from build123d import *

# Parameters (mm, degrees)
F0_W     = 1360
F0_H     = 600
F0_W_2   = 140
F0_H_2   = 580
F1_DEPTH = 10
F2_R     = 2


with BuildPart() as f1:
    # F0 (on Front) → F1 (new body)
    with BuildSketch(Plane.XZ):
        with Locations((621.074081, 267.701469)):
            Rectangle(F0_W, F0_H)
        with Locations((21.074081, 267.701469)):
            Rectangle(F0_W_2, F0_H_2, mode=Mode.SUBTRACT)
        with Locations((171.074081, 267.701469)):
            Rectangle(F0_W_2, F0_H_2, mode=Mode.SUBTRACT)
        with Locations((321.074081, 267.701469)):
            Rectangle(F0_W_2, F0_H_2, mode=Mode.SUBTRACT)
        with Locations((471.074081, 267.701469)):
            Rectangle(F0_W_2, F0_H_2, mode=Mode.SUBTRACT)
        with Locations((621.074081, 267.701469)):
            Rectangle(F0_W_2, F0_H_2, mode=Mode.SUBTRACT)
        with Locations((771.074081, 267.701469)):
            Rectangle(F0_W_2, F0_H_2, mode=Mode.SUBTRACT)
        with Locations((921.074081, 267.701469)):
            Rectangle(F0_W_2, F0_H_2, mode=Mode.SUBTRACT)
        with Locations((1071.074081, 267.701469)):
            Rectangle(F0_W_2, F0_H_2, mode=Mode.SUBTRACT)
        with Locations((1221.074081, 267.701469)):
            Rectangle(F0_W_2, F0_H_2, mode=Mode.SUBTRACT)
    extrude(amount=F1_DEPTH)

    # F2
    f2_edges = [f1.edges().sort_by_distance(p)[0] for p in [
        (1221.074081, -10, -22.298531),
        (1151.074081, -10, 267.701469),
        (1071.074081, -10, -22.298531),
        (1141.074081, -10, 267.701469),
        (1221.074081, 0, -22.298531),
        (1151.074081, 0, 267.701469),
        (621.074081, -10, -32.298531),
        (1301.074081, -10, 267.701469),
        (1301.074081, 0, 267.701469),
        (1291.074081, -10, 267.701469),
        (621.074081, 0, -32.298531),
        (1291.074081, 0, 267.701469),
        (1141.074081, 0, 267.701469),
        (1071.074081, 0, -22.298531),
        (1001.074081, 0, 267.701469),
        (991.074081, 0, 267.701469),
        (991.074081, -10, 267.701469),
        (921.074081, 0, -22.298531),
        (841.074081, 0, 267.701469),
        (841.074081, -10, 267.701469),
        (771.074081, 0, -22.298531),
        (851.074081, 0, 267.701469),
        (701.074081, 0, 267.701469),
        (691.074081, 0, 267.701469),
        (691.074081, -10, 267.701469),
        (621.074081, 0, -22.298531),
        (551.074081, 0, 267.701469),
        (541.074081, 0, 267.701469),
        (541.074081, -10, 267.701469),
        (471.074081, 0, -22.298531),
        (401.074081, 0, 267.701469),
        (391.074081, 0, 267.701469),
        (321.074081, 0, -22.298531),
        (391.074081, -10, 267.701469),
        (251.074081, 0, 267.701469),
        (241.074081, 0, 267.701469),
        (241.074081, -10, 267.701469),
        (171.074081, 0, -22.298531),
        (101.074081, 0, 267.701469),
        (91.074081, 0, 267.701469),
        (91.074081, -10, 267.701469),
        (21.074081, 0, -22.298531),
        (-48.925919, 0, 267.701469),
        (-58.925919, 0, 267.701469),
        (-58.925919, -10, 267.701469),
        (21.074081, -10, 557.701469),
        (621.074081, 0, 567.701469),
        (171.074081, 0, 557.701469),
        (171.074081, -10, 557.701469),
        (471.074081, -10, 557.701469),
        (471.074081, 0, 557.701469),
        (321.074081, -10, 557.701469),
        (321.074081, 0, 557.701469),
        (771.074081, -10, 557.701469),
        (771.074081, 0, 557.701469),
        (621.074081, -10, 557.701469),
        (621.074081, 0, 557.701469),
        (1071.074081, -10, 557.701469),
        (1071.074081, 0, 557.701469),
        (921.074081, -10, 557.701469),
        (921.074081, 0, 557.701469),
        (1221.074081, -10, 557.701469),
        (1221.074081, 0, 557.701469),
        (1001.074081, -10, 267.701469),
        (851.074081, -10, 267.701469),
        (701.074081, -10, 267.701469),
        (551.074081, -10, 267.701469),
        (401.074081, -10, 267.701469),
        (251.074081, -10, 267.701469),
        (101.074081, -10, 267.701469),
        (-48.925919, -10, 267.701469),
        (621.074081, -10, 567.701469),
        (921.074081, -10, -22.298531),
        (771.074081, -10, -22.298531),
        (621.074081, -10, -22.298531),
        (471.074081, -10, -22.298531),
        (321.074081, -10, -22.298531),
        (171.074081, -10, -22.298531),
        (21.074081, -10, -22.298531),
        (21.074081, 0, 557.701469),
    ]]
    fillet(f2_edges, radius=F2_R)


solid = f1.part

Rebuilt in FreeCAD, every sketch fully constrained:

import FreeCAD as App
import Part
import Sketcher
from FreeCAD import Vector
Q = App.Units.Quantity


def edges_at(feature, points):
    """Names of the edges that pass closest to the given points."""
    edges = feature.Shape.Edges
    near = lambda p: min(range(len(edges)), key=lambda i: edges[i].distToShape(Part.Vertex(*p))[0])
    return sorted({f"Edge{near(p) + 1}" for p in points})

doc = App.newDocument("Part")
params = doc.addObject("Spreadsheet::Sheet", "Params")
for row, (alias, value) in enumerate([
    ("sketch1_width", "1360 mm"),
    ("sketch1_width2", "140 mm"),
    ("sketch1_height", "600 mm"),
    ("sketch1_height2", "580 mm"),
    ("pad1_length", "10 mm"),
    ("fillet_radius", "2 mm"),
], start=1):
    params.set(f"A{row}", alias)
    params.set(f"B{row}", "=" + value)
    params.setAlias(f"B{row}", alias)

body = doc.addObject("PartDesign::Body", "Body")

# Sketch on XZ plane
sketch1 = doc.addObject("Sketcher::SketchObject", "Sketch")
body.addObject(sketch1)
sketch1.AttachmentSupport = (doc.XZ_Plane, [""])
sketch1.MapMode = "FlatFace"
sketch1.addGeometry([
    Part.LineSegment(Vector(-58.925919, 567.701469, 0), Vector(-58.925919, -32.298531, 0)),  # 0
    Part.LineSegment(Vector(-58.925919, -32.298531, 0), Vector(1301.074081, -32.298531, 0)),  # 1
    Part.LineSegment(Vector(1301.074081, -32.298531, 0), Vector(1301.074081, 567.701469, 0)),  # 2
    Part.LineSegment(Vector(1301.074081, 567.701469, 0), Vector(-58.925919, 567.701469, 0)),  # 3
    Part.LineSegment(Vector(91.074081, -22.298531, 0), Vector(-48.925919, -22.298531, 0)),  # 4
    Part.LineSegment(Vector(-48.925919, -22.298531, 0), Vector(-48.925919, 557.701469, 0)),  # 5
    Part.LineSegment(Vector(-48.925919, 557.701469, 0), Vector(91.074081, 557.701469, 0)),  # 6
    Part.LineSegment(Vector(91.074081, 557.701469, 0), Vector(91.074081, -22.298531, 0)),  # 7
    Part.LineSegment(Vector(241.074081, -22.298531, 0), Vector(101.074081, -22.298531, 0)),  # 8
    Part.LineSegment(Vector(101.074081, -22.298531, 0), Vector(101.074081, 557.701469, 0)),  # 9
    Part.LineSegment(Vector(101.074081, 557.701469, 0), Vector(241.074081, 557.701469, 0)),  # 10
    Part.LineSegment(Vector(241.074081, 557.701469, 0), Vector(241.074081, -22.298531, 0)),  # 11
    Part.LineSegment(Vector(391.074081, -22.298531, 0), Vector(251.074081, -22.298531, 0)),  # 12
    Part.LineSegment(Vector(251.074081, -22.298531, 0), Vector(251.074081, 557.701469, 0)),  # 13
    Part.LineSegment(Vector(251.074081, 557.701469, 0), Vector(391.074081, 557.701469, 0)),  # 14
    Part.LineSegment(Vector(391.074081, 557.701469, 0), Vector(391.074081, -22.298531, 0)),  # 15
    Part.LineSegment(Vector(541.074081, -22.298531, 0), Vector(401.074081, -22.298531, 0)),  # 16
    Part.LineSegment(Vector(401.074081, -22.298531, 0), Vector(401.074081, 557.701469, 0)),  # 17
    Part.LineSegment(Vector(401.074081, 557.701469, 0), Vector(541.074081, 557.701469, 0)),  # 18
    Part.LineSegment(Vector(541.074081, 557.701469, 0), Vector(541.074081, -22.298531, 0)),  # 19
    Part.LineSegment(Vector(691.074081, -22.298531, 0), Vector(551.074081, -22.298531, 0)),  # 20
    Part.LineSegment(Vector(551.074081, -22.298531, 0), Vector(551.074081, 557.701469, 0)),  # 21
    Part.LineSegment(Vector(551.074081, 557.701469, 0), Vector(691.074081, 557.701469, 0)),  # 22
    Part.LineSegment(Vector(691.074081, 557.701469, 0), Vector(691.074081, -22.298531, 0)),  # 23
    Part.LineSegment(Vector(841.074081, -22.298531, 0), Vector(701.074081, -22.298531, 0)),  # 24
    Part.LineSegment(Vector(701.074081, -22.298531, 0), Vector(701.074081, 557.701469, 0)),  # 25
    Part.LineSegment(Vector(701.074081, 557.701469, 0), Vector(841.074081, 557.701469, 0)),  # 26
    Part.LineSegment(Vector(841.074081, 557.701469, 0), Vector(841.074081, -22.298531, 0)),  # 27
    Part.LineSegment(Vector(991.074081, -22.298531, 0), Vector(851.074081, -22.298531, 0)),  # 28
    Part.LineSegment(Vector(851.074081, -22.298531, 0), Vector(851.074081, 557.701469, 0)),  # 29
    Part.LineSegment(Vector(851.074081, 557.701469, 0), Vector(991.074081, 557.701469, 0)),  # 30
    Part.LineSegment(Vector(991.074081, 557.701469, 0), Vector(991.074081, -22.298531, 0)),  # 31
    Part.LineSegment(Vector(1141.074081, -22.298531, 0), Vector(1001.074081, -22.298531, 0)),  # 32
    Part.LineSegment(Vector(1001.074081, -22.298531, 0), Vector(1001.074081, 557.701469, 0)),  # 33
    Part.LineSegment(Vector(1001.074081, 557.701469, 0), Vector(1141.074081, 557.701469, 0)),  # 34
    Part.LineSegment(Vector(1141.074081, 557.701469, 0), Vector(1141.074081, -22.298531, 0)),  # 35
    Part.LineSegment(Vector(1291.074081, -22.298531, 0), Vector(1151.074081, -22.298531, 0)),  # 36
    Part.LineSegment(Vector(1151.074081, -22.298531, 0), Vector(1151.074081, 557.701469, 0)),  # 37
    Part.LineSegment(Vector(1151.074081, 557.701469, 0), Vector(1291.074081, 557.701469, 0)),  # 38
    Part.LineSegment(Vector(1291.074081, 557.701469, 0), Vector(1291.074081, -22.298531, 0)),  # 39
], False)
sketch1.addConstraint([
    Sketcher.Constraint("Coincident", 0, 2, 1, 1),
    Sketcher.Constraint("Coincident", 1, 2, 2, 1),
    Sketcher.Constraint("Coincident", 2, 2, 3, 1),
    Sketcher.Constraint("Coincident", 3, 2, 0, 1),
    Sketcher.Constraint("Coincident", 4, 2, 5, 1),
    Sketcher.Constraint("Coincident", 5, 2, 6, 1),
    Sketcher.Constraint("Coincident", 6, 2, 7, 1),
    Sketcher.Constraint("Coincident", 7, 2, 4, 1),
    Sketcher.Constraint("Coincident", 8, 2, 9, 1),
    Sketcher.Constraint("Coincident", 9, 2, 10, 1),
    Sketcher.Constraint("Coincident", 10, 2, 11, 1),
    Sketcher.Constraint("Coincident", 11, 2, 8, 1),
    Sketcher.Constraint("Coincident", 12, 2, 13, 1),
    Sketcher.Constraint("Coincident", 13, 2, 14, 1),
    Sketcher.Constraint("Coincident", 14, 2, 15, 1),
    Sketcher.Constraint("Coincident", 15, 2, 12, 1),
    Sketcher.Constraint("Coincident", 16, 2, 17, 1),
    Sketcher.Constraint("Coincident", 17, 2, 18, 1),
    Sketcher.Constraint("Coincident", 18, 2, 19, 1),
    Sketcher.Constraint("Coincident", 19, 2, 16, 1),
    Sketcher.Constraint("Coincident", 20, 2, 21, 1),
    Sketcher.Constraint("Coincident", 21, 2, 22, 1),
    Sketcher.Constraint("Coincident", 22, 2, 23, 1),
    Sketcher.Constraint("Coincident", 23, 2, 20, 1),
    Sketcher.Constraint("Coincident", 24, 2, 25, 1),
    Sketcher.Constraint("Coincident", 25, 2, 26, 1),
    Sketcher.Constraint("Coincident", 26, 2, 27, 1),
    Sketcher.Constraint("Coincident", 27, 2, 24, 1),
    Sketcher.Constraint("Coincident", 28, 2, 29, 1),
    Sketcher.Constraint("Coincident", 29, 2, 30, 1),
    Sketcher.Constraint("Coincident", 30, 2, 31, 1),
    Sketcher.Constraint("Coincident", 31, 2, 28, 1),
    Sketcher.Constraint("Coincident", 32, 2, 33, 1),
    Sketcher.Constraint("Coincident", 33, 2, 34, 1),
    Sketcher.Constraint("Coincident", 34, 2, 35, 1),
    Sketcher.Constraint("Coincident", 35, 2, 32, 1),
    Sketcher.Constraint("Coincident", 36, 2, 37, 1),
    Sketcher.Constraint("Coincident", 37, 2, 38, 1),
    Sketcher.Constraint("Coincident", 38, 2, 39, 1),
    Sketcher.Constraint("Coincident", 39, 2, 36, 1),
    Sketcher.Constraint("Vertical", 0),
    Sketcher.Constraint("Horizontal", 1),
    Sketcher.Constraint("Vertical", 2),
    Sketcher.Constraint("Horizontal", 3),
    Sketcher.Constraint("Horizontal", 4),
    Sketcher.Constraint("Vertical", 5),
    Sketcher.Constraint("Horizontal", 6),
    Sketcher.Constraint("Vertical", 7),
    Sketcher.Constraint("Horizontal", 8),
    Sketcher.Constraint("Vertical", 9),
    Sketcher.Constraint("Horizontal", 10),
    Sketcher.Constraint("Vertical", 11),
    Sketcher.Constraint("Horizontal", 12),
    Sketcher.Constraint("Vertical", 13),
    Sketcher.Constraint("Horizontal", 14),
    Sketcher.Constraint("Vertical", 15),
    Sketcher.Constraint("Horizontal", 16),
    Sketcher.Constraint("Vertical", 17),
    Sketcher.Constraint("Horizontal", 18),
    Sketcher.Constraint("Vertical", 19),
    Sketcher.Constraint("Horizontal", 20),
    Sketcher.Constraint("Vertical", 21),
    Sketcher.Constraint("Horizontal", 22),
    Sketcher.Constraint("Vertical", 23),
    Sketcher.Constraint("Horizontal", 24),
    Sketcher.Constraint("Vertical", 25),
    Sketcher.Constraint("Horizontal", 26),
    Sketcher.Constraint("Vertical", 27),
    Sketcher.Constraint("Horizontal", 28),
    Sketcher.Constraint("Vertical", 29),
    Sketcher.Constraint("Horizontal", 30),
    Sketcher.Constraint("Vertical", 31),
    Sketcher.Constraint("Horizontal", 32),
    Sketcher.Constraint("Vertical", 33),
    Sketcher.Constraint("Horizontal", 34),
    Sketcher.Constraint("Vertical", 35),
    Sketcher.Constraint("Horizontal", 36),
    Sketcher.Constraint("Vertical", 37),
    Sketcher.Constraint("Horizontal", 38),
    Sketcher.Constraint("Vertical", 39),
    Sketcher.Constraint("Horizontal", 7, 2, 8, 2),
    Sketcher.Constraint("Horizontal", 6, 2, 9, 2),
    Sketcher.Constraint("Horizontal", 11, 2, 12, 2),
    Sketcher.Constraint("Horizontal", 10, 2, 13, 2),
    Sketcher.Constraint("Horizontal", 15, 2, 16, 2),
    Sketcher.Constraint("Horizontal", 14, 2, 17, 2),
    Sketcher.Constraint("Horizontal", 19, 2, 20, 2),
    Sketcher.Constraint("Horizontal", 18, 2, 21, 2),
    Sketcher.Constraint("Horizontal", 23, 2, 24, 2),
    Sketcher.Constraint("Horizontal", 22, 2, 25, 2),
    Sketcher.Constraint("Horizontal", 27, 2, 28, 2),
    Sketcher.Constraint("Horizontal", 26, 2, 29, 2),
    Sketcher.Constraint("Horizontal", 31, 2, 32, 2),
    Sketcher.Constraint("Horizontal", 30, 2, 33, 2),
    Sketcher.Constraint("Horizontal", 35, 2, 36, 2),
    Sketcher.Constraint("Horizontal", 34, 2, 37, 2),
    Sketcher.Constraint("Equal", 6, 8),
    Sketcher.Constraint("Equal", 10, 12),
    Sketcher.Constraint("Equal", 14, 16),
    Sketcher.Constraint("Equal", 18, 20),
    Sketcher.Constraint("Equal", 22, 24),
    Sketcher.Constraint("Equal", 26, 28),
    Sketcher.Constraint("Equal", 30, 32),
    Sketcher.Constraint("Equal", 34, 36),
    Sketcher.Constraint("DistanceX", 1, 1, 1, 2, Q("1360 mm")),
    Sketcher.Constraint("DistanceX", 4, 2, 4, 1, Q("140 mm")),
    Sketcher.Constraint("DistanceY", 0, 2, 0, 1, Q("600 mm")),
    Sketcher.Constraint("DistanceY", 5, 1, 5, 2, Q("580 mm")),
    Sketcher.Constraint("DistanceX", 0, 2, 4, 2, Q("10 mm")),
    Sketcher.Constraint("DistanceY", 0, 2, 4, 2, Q("10 mm")),
    Sketcher.Constraint("DistanceX", 7, 2, 8, 2, Q("10 mm")),
    Sketcher.Constraint("DistanceX", 11, 2, 12, 2, Q("10 mm")),
    Sketcher.Constraint("DistanceX", 15, 2, 16, 2, Q("10 mm")),
    Sketcher.Constraint("DistanceX", 19, 2, 20, 2, Q("10 mm")),
    Sketcher.Constraint("DistanceX", 23, 2, 24, 2, Q("10 mm")),
    Sketcher.Constraint("DistanceX", 27, 2, 28, 2, Q("10 mm")),
    Sketcher.Constraint("DistanceX", 31, 2, 32, 2, Q("10 mm")),
    Sketcher.Constraint("DistanceX", 35, 2, 36, 2, Q("10 mm")),
    Sketcher.Constraint("DistanceX", 0, 2, -1, 1, Q("58.925919 mm")),
    Sketcher.Constraint("DistanceY", 0, 2, -1, 1, Q("32.298531 mm")),
])
sketch1.setExpression("Constraints[104]", "Params.sketch1_width")
sketch1.setExpression("Constraints[105]", "Params.sketch1_width2")
sketch1.setExpression("Constraints[106]", "Params.sketch1_height")
sketch1.setExpression("Constraints[107]", "Params.sketch1_height2")
pad1 = doc.addObject("PartDesign::Pad", "Pad")
body.addObject(pad1)
pad1.Profile = sketch1
pad1.setExpression("Length", "Params.pad1_length")
doc.recompute()

fillet = doc.addObject("PartDesign::Fillet", "Fillet")
body.addObject(fillet)
fillet.Base = (pad1, edges_at(pad1, [
    (1221.074, -10, -22.299),
    (1151.074, -10, 267.701),
    (1071.074, -10, -22.299),
    (1141.074, -10, 267.701),
    (1221.074, 0, -22.299),
    (1151.074, 0, 267.701),
    (621.074, -10, -32.299),
    (1301.074, -10, 267.701),
    (1301.074, 0, 267.701),
    (1291.074, -10, 267.701),
    (621.074, 0, -32.299),
    (1291.074, 0, 267.701),
    (1141.074, 0, 267.701),
    (1071.074, 0, -22.299),
    (1001.074, 0, 267.701),
    (991.074, 0, 267.701),
    (991.074, -10, 267.701),
    (921.074, 0, -22.299),
    (841.074, 0, 267.701),
    (841.074, -10, 267.701),
    (771.074, 0, -22.299),
    (851.074, 0, 267.701),
    (701.074, 0, 267.701),
    (691.074, 0, 267.701),
    (691.074, -10, 267.701),
    (621.074, 0, -22.299),
    (551.074, 0, 267.701),
    (541.074, 0, 267.701),
    (541.074, -10, 267.701),
    (471.074, 0, -22.299),
    (401.074, 0, 267.701),
    (391.074, 0, 267.701),
    (321.074, 0, -22.299),
    (391.074, -10, 267.701),
    (251.074, 0, 267.701),
    (241.074, 0, 267.701),
    (241.074, -10, 267.701),
    (171.074, 0, -22.299),
    (101.074, 0, 267.701),
    (91.074, 0, 267.701),
    (91.074, -10, 267.701),
    (21.074, 0, -22.299),
    (-48.926, 0, 267.701),
    (-58.926, 0, 267.701),
    (-58.926, -10, 267.701),
    (21.074, -10, 557.701),
    (621.074, 0, 567.701),
    (171.074, 0, 557.701),
    (171.074, -10, 557.701),
    (471.074, -10, 557.701),
    (471.074, 0, 557.701),
    (321.074, -10, 557.701),
    (321.074, 0, 557.701),
    (771.074, -10, 557.701),
    (771.074, 0, 557.701),
    (621.074, -10, 557.701),
    (621.074, 0, 557.701),
    (1071.074, -10, 557.701),
    (1071.074, 0, 557.701),
    (921.074, -10, 557.701),
    (921.074, 0, 557.701),
    (1221.074, -10, 557.701),
    (1221.074, 0, 557.701),
    (1001.074, -10, 267.701),
    (851.074, -10, 267.701),
    (701.074, -10, 267.701),
    (551.074, -10, 267.701),
    (401.074, -10, 267.701),
    (251.074, -10, 267.701),
    (101.074, -10, 267.701),
    (-48.926, -10, 267.701),
    (621.074, -10, 567.701),
    (921.074, -10, -22.299),
    (771.074, -10, -22.299),
    (621.074, -10, -22.299),
    (471.074, -10, -22.299),
    (321.074, -10, -22.299),
    (171.074, -10, -22.299),
    (21.074, -10, -22.299),
    (21.074, 0, 557.701),
]))
fillet.setExpression("Radius", "Params.fillet_radius")

doc.recompute()
